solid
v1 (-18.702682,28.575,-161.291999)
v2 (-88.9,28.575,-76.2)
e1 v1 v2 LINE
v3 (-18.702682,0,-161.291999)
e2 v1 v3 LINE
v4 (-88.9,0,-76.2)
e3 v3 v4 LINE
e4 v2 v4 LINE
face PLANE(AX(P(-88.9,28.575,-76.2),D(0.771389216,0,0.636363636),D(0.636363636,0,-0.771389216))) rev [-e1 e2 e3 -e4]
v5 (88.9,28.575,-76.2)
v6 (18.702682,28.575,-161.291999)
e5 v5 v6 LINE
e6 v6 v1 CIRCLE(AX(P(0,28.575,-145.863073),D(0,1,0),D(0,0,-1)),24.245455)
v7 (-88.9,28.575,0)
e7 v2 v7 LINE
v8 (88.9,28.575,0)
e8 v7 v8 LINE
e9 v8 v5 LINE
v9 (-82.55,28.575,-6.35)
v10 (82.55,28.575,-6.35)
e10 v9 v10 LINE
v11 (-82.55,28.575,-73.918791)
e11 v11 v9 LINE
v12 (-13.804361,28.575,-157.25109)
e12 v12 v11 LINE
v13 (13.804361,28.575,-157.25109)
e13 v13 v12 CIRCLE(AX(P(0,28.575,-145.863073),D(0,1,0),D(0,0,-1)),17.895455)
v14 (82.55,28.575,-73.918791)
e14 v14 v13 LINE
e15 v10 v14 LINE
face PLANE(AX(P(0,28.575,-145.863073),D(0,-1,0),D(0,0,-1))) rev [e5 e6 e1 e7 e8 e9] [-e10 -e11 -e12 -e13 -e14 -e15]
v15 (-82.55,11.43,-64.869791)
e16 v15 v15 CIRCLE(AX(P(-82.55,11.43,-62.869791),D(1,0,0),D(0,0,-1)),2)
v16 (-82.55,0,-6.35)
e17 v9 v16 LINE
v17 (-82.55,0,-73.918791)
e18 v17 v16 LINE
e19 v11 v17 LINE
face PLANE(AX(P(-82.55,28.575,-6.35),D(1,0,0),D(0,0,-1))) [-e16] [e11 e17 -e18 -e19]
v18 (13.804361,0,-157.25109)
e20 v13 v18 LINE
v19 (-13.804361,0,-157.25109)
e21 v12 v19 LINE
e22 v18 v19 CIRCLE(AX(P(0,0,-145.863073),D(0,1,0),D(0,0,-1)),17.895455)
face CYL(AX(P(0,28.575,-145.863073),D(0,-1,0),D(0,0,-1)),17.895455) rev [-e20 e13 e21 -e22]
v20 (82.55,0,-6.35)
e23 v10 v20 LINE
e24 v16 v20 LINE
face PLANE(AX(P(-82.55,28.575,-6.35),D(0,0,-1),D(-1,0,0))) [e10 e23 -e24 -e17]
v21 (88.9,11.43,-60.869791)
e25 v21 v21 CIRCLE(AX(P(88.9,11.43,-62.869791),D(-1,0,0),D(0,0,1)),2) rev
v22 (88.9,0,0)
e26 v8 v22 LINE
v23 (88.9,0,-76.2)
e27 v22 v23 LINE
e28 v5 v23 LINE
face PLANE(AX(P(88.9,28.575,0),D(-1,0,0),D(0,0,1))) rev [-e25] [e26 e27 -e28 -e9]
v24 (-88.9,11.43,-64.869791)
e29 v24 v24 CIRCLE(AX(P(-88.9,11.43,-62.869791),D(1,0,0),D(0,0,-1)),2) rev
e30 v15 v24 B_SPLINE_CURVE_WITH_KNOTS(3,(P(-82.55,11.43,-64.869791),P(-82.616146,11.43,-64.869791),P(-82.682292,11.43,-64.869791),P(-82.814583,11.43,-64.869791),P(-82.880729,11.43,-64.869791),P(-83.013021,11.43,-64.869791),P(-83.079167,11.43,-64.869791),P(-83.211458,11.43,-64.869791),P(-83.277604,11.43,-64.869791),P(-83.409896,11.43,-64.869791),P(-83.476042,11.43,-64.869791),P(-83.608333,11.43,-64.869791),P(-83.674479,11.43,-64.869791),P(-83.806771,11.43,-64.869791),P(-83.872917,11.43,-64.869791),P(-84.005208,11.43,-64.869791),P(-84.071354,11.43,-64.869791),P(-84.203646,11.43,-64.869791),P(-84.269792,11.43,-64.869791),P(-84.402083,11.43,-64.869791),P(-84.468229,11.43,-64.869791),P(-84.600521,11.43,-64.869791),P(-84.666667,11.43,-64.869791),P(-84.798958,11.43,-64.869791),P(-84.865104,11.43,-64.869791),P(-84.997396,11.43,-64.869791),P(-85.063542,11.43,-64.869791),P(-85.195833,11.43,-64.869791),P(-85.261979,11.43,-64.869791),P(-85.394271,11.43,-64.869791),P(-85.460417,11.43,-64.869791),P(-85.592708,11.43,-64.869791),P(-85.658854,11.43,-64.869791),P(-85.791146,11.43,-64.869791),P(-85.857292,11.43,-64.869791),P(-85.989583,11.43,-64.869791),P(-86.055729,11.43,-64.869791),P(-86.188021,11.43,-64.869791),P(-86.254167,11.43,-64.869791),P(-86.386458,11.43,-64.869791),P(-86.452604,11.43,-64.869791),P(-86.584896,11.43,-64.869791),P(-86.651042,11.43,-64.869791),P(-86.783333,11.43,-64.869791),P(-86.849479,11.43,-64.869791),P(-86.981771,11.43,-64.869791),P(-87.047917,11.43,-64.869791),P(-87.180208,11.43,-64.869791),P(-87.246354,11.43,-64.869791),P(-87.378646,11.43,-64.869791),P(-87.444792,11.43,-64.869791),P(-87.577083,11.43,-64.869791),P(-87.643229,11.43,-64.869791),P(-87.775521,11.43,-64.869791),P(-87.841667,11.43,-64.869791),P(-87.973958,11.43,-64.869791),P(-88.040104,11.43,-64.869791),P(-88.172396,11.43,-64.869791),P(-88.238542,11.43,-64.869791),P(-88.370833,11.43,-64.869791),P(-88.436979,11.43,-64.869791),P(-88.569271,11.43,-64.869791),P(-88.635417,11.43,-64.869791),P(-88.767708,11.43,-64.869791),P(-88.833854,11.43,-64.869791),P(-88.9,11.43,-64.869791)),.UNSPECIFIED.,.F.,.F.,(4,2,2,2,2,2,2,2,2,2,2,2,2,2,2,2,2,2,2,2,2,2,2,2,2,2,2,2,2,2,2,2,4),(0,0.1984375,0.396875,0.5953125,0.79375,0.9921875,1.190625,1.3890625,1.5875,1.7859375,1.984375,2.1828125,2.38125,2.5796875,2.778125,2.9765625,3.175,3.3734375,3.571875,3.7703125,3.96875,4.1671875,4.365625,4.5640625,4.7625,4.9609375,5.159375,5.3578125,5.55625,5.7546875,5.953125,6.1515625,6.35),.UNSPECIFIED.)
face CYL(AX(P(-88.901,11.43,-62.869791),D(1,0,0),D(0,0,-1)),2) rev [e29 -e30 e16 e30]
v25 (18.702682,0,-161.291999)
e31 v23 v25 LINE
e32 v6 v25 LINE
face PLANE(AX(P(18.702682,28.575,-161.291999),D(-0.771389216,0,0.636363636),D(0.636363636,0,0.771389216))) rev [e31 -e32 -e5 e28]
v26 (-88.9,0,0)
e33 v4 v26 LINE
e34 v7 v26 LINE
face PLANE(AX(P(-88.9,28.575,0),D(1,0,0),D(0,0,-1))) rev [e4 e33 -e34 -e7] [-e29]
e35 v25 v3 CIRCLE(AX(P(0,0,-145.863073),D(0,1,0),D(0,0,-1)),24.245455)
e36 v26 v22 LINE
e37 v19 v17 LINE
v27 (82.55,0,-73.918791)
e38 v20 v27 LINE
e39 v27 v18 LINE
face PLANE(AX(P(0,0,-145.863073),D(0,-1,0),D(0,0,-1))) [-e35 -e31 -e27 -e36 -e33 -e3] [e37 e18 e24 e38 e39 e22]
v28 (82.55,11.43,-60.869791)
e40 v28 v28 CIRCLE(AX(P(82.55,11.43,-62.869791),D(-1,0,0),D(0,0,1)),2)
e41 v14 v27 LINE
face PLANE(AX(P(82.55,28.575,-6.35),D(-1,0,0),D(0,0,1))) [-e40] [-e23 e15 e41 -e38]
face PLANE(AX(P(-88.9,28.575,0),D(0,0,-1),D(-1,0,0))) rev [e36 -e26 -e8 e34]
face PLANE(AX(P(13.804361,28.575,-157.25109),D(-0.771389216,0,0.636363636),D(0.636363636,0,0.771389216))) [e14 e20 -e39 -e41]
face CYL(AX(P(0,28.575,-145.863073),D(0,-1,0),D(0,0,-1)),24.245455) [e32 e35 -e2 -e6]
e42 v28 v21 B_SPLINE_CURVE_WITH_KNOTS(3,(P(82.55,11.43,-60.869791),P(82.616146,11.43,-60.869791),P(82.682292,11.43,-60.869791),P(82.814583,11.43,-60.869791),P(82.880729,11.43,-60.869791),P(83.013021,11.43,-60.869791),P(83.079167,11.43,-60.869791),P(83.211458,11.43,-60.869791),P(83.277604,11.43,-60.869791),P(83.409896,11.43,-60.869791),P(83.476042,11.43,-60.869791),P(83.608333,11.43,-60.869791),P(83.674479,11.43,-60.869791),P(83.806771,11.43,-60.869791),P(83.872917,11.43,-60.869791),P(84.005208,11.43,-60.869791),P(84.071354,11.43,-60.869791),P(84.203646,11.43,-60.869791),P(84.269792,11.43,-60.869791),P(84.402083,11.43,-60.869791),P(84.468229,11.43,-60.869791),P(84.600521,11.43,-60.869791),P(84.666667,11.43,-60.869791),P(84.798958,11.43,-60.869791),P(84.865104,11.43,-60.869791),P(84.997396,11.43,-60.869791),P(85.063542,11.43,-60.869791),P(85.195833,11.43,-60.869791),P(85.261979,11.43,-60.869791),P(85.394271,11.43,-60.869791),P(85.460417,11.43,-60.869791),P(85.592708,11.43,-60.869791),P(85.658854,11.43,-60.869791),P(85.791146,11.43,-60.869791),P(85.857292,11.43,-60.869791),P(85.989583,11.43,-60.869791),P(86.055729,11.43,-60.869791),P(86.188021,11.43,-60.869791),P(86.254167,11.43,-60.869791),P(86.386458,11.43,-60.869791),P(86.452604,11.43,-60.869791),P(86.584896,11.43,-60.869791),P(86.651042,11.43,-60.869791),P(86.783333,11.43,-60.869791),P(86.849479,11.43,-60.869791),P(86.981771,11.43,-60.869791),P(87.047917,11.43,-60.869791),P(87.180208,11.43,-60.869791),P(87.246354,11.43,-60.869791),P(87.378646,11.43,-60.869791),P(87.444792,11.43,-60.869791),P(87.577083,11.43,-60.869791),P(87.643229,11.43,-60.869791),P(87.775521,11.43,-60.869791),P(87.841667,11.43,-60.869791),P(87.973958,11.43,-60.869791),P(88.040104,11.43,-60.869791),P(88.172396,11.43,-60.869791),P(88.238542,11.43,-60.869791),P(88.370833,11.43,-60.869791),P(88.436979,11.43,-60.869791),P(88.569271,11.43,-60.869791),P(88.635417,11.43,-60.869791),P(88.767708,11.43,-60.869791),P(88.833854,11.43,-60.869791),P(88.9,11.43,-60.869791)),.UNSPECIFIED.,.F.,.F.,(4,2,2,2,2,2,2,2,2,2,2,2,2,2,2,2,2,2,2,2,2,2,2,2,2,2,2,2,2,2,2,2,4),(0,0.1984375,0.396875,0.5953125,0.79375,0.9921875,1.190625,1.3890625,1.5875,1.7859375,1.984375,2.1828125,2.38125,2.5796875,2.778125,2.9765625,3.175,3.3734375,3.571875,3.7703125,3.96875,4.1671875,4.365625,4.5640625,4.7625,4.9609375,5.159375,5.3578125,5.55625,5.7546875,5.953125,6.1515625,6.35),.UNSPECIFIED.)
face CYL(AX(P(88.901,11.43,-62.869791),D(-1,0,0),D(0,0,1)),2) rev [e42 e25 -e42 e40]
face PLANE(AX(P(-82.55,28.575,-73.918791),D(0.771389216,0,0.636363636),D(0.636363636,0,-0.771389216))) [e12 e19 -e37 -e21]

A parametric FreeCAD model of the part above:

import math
import FreeCAD as App
import Part
import Sketcher
from FreeCAD import Vector
Q = App.Units.Quantity

doc = App.newDocument("Part")
body = doc.addObject("PartDesign::Body", "Body")

# Sketch on XZ plane
sketch1 = body.newObject("Sketcher::SketchObject", "Sketch")
sketch1.AttachmentSupport = (doc.getObject("XZ_Plane"), [""])
sketch1.MapMode = "FlatFace"
sketch1.addGeometry([
    Part.LineSegment(Vector(-89, 0, 0), Vector(89, 0, 0)),  # 0
    Part.LineSegment(Vector(89, 0, 0), Vector(89, -76, 0)),  # 1
    Part.LineSegment(Vector(89, -76, 0), Vector(19, -161, 0)),  # 2
    Part.ArcOfCircle(Part.Circle(Vector(0, -146, 0), Vector(0, 0, 1), 24), math.radians(-140), math.radians(-40)),  # 3
    Part.LineSegment(Vector(-19, -161, 0), Vector(-89, -76, 0)),  # 4
    Part.LineSegment(Vector(-89, -76, 0), Vector(-89, 0, 0)),  # 5
    Part.LineSegment(Vector(83, -6, 0), Vector(-83, -6, 0)),  # 6
    Part.LineSegment(Vector(-83, -6, 0), Vector(-83, -74, 0)),  # 7
    Part.LineSegment(Vector(-83, -74, 0), Vector(-14, -157, 0)),  # 8
    Part.ArcOfCircle(Part.Circle(Vector(0, -146, 0), Vector(0, 0, 1), 18), math.radians(-140), math.radians(-40)),  # 9
    Part.LineSegment(Vector(14, -157, 0), Vector(83, -74, 0)),  # 10
    Part.LineSegment(Vector(83, -74, 0), Vector(83, -6, 0)),  # 11
], False)
sketch1.addConstraint([
    Sketcher.Constraint("Coincident", 0, 2, 1, 1),
    Sketcher.Constraint("Coincident", 1, 2, 2, 1),
    Sketcher.Constraint("Tangent", 2, 2, 3, 2),
    Sketcher.Constraint("Tangent", 3, 1, 4, 1),
    Sketcher.Constraint("Coincident", 4, 2, 5, 1),
    Sketcher.Constraint("Coincident", 5, 2, 0, 1),
    Sketcher.Constraint("Coincident", 6, 2, 7, 1),
    Sketcher.Constraint("Coincident", 7, 2, 8, 1),
    Sketcher.Constraint("Tangent", 8, 2, 9, 1),
    Sketcher.Constraint("Tangent", 9, 2, 10, 1),
    Sketcher.Constraint("Coincident", 10, 2, 11, 1),
    Sketcher.Constraint("Coincident", 11, 2, 6, 1),
    Sketcher.Constraint("Horizontal", 0),
    Sketcher.Constraint("Vertical", 1),
    Sketcher.Constraint("Vertical", 5),
    Sketcher.Constraint("Horizontal", 6),
    Sketcher.Constraint("Vertical", 7),
    Sketcher.Constraint("Vertical", 11),
    Sketcher.Constraint("Coincident", 9, 3, 3, 3),
    Sketcher.Constraint("Symmetric", 0, 2, 5, 2, -1, 1),
    Sketcher.Constraint("Symmetric", 2, 2, 3, 1, -2),
    Sketcher.Constraint("Symmetric", 7, 2, 10, 2, -2),
    Sketcher.Constraint("Parallel", 4, 8),
    Sketcher.Constraint("DistanceX", 0, 1, 0, 2, Q("7 in")),
    Sketcher.Constraint("DistanceY", 1, 2, 1, 1, Q("3 in")),
    Sketcher.Constraint("DistanceX", 6, 2, 6, 1, Q("6.5 in")),
    Sketcher.Constraint("DistanceY", 6, 2, -1, 1, Q("0.25 in")),
    Sketcher.Constraint("Radius", 3, Q("24.245455 mm")),
    Sketcher.Constraint("Radius", 9, Q("17.895455 mm")),
    Sketcher.Constraint("DistanceY", 7, 2, 7, 1, Q("67.568791 mm")),
])
pad1 = body.newObject("PartDesign::Pad", "Pad")
pad1.Profile = sketch1
pad1.Length = Q("1.125 in")
pad1.Reversed = True

# Sketch on YZ plane
sketch2 = body.newObject("Sketcher::SketchObject", "Sketch001")
sketch2.AttachmentSupport = (doc.getObject("YZ_Plane"), [""])
sketch2.MapMode = "FlatFace"
sketch2.AttachmentOffset = App.Placement(Vector(0, 0, -3.5 * 25.4), App.Rotation())
sketch2.addGeometry(Part.Circle(Vector(11.4, -62.9, 0), Vector(0, 0, 1), 2), False)
sketch2.addConstraint([
    Sketcher.Constraint("Diameter", 0, Q("4 mm")),
    Sketcher.Constraint("DistanceX", -1, 1, 0, 3, Q("0.45 in")),
    Sketcher.Constraint("DistanceY", 0, 3, -1, 1, Q("62.869791 mm")),
])
pocket1 = body.newObject("PartDesign::Pocket", "Pocket")
pocket1.Profile = sketch2
pocket1.Length = Q("0.25 in")
pocket1.Reversed = True

# Sketch on YZ plane
sketch3 = body.newObject("Sketcher::SketchObject", "Sketch002")
sketch3.AttachmentSupport = (doc.getObject("YZ_Plane"), [""])
sketch3.MapMode = "FlatFace"
sketch3.AttachmentOffset = App.Placement(Vector(0, 0, 3.25 * 25.4), App.Rotation())
sketch3.addGeometry(Part.Circle(Vector(11.4, -62.9, 0), Vector(0, 0, 1), 2), False)
sketch3.addConstraint([
    Sketcher.Constraint("Diameter", 0, Q("4 mm")),
    Sketcher.Constraint("DistanceX", -1, 1, 0, 3, Q("0.45 in")),
    Sketcher.Constraint("DistanceY", 0, 3, -1, 1, Q("62.869791 mm")),
])
pocket2 = body.newObject("PartDesign::Pocket", "Pocket001")
pocket2.Profile = sketch3
pocket2.Length = Q("0.25 in")
pocket2.Reversed = True

doc.recompute()
